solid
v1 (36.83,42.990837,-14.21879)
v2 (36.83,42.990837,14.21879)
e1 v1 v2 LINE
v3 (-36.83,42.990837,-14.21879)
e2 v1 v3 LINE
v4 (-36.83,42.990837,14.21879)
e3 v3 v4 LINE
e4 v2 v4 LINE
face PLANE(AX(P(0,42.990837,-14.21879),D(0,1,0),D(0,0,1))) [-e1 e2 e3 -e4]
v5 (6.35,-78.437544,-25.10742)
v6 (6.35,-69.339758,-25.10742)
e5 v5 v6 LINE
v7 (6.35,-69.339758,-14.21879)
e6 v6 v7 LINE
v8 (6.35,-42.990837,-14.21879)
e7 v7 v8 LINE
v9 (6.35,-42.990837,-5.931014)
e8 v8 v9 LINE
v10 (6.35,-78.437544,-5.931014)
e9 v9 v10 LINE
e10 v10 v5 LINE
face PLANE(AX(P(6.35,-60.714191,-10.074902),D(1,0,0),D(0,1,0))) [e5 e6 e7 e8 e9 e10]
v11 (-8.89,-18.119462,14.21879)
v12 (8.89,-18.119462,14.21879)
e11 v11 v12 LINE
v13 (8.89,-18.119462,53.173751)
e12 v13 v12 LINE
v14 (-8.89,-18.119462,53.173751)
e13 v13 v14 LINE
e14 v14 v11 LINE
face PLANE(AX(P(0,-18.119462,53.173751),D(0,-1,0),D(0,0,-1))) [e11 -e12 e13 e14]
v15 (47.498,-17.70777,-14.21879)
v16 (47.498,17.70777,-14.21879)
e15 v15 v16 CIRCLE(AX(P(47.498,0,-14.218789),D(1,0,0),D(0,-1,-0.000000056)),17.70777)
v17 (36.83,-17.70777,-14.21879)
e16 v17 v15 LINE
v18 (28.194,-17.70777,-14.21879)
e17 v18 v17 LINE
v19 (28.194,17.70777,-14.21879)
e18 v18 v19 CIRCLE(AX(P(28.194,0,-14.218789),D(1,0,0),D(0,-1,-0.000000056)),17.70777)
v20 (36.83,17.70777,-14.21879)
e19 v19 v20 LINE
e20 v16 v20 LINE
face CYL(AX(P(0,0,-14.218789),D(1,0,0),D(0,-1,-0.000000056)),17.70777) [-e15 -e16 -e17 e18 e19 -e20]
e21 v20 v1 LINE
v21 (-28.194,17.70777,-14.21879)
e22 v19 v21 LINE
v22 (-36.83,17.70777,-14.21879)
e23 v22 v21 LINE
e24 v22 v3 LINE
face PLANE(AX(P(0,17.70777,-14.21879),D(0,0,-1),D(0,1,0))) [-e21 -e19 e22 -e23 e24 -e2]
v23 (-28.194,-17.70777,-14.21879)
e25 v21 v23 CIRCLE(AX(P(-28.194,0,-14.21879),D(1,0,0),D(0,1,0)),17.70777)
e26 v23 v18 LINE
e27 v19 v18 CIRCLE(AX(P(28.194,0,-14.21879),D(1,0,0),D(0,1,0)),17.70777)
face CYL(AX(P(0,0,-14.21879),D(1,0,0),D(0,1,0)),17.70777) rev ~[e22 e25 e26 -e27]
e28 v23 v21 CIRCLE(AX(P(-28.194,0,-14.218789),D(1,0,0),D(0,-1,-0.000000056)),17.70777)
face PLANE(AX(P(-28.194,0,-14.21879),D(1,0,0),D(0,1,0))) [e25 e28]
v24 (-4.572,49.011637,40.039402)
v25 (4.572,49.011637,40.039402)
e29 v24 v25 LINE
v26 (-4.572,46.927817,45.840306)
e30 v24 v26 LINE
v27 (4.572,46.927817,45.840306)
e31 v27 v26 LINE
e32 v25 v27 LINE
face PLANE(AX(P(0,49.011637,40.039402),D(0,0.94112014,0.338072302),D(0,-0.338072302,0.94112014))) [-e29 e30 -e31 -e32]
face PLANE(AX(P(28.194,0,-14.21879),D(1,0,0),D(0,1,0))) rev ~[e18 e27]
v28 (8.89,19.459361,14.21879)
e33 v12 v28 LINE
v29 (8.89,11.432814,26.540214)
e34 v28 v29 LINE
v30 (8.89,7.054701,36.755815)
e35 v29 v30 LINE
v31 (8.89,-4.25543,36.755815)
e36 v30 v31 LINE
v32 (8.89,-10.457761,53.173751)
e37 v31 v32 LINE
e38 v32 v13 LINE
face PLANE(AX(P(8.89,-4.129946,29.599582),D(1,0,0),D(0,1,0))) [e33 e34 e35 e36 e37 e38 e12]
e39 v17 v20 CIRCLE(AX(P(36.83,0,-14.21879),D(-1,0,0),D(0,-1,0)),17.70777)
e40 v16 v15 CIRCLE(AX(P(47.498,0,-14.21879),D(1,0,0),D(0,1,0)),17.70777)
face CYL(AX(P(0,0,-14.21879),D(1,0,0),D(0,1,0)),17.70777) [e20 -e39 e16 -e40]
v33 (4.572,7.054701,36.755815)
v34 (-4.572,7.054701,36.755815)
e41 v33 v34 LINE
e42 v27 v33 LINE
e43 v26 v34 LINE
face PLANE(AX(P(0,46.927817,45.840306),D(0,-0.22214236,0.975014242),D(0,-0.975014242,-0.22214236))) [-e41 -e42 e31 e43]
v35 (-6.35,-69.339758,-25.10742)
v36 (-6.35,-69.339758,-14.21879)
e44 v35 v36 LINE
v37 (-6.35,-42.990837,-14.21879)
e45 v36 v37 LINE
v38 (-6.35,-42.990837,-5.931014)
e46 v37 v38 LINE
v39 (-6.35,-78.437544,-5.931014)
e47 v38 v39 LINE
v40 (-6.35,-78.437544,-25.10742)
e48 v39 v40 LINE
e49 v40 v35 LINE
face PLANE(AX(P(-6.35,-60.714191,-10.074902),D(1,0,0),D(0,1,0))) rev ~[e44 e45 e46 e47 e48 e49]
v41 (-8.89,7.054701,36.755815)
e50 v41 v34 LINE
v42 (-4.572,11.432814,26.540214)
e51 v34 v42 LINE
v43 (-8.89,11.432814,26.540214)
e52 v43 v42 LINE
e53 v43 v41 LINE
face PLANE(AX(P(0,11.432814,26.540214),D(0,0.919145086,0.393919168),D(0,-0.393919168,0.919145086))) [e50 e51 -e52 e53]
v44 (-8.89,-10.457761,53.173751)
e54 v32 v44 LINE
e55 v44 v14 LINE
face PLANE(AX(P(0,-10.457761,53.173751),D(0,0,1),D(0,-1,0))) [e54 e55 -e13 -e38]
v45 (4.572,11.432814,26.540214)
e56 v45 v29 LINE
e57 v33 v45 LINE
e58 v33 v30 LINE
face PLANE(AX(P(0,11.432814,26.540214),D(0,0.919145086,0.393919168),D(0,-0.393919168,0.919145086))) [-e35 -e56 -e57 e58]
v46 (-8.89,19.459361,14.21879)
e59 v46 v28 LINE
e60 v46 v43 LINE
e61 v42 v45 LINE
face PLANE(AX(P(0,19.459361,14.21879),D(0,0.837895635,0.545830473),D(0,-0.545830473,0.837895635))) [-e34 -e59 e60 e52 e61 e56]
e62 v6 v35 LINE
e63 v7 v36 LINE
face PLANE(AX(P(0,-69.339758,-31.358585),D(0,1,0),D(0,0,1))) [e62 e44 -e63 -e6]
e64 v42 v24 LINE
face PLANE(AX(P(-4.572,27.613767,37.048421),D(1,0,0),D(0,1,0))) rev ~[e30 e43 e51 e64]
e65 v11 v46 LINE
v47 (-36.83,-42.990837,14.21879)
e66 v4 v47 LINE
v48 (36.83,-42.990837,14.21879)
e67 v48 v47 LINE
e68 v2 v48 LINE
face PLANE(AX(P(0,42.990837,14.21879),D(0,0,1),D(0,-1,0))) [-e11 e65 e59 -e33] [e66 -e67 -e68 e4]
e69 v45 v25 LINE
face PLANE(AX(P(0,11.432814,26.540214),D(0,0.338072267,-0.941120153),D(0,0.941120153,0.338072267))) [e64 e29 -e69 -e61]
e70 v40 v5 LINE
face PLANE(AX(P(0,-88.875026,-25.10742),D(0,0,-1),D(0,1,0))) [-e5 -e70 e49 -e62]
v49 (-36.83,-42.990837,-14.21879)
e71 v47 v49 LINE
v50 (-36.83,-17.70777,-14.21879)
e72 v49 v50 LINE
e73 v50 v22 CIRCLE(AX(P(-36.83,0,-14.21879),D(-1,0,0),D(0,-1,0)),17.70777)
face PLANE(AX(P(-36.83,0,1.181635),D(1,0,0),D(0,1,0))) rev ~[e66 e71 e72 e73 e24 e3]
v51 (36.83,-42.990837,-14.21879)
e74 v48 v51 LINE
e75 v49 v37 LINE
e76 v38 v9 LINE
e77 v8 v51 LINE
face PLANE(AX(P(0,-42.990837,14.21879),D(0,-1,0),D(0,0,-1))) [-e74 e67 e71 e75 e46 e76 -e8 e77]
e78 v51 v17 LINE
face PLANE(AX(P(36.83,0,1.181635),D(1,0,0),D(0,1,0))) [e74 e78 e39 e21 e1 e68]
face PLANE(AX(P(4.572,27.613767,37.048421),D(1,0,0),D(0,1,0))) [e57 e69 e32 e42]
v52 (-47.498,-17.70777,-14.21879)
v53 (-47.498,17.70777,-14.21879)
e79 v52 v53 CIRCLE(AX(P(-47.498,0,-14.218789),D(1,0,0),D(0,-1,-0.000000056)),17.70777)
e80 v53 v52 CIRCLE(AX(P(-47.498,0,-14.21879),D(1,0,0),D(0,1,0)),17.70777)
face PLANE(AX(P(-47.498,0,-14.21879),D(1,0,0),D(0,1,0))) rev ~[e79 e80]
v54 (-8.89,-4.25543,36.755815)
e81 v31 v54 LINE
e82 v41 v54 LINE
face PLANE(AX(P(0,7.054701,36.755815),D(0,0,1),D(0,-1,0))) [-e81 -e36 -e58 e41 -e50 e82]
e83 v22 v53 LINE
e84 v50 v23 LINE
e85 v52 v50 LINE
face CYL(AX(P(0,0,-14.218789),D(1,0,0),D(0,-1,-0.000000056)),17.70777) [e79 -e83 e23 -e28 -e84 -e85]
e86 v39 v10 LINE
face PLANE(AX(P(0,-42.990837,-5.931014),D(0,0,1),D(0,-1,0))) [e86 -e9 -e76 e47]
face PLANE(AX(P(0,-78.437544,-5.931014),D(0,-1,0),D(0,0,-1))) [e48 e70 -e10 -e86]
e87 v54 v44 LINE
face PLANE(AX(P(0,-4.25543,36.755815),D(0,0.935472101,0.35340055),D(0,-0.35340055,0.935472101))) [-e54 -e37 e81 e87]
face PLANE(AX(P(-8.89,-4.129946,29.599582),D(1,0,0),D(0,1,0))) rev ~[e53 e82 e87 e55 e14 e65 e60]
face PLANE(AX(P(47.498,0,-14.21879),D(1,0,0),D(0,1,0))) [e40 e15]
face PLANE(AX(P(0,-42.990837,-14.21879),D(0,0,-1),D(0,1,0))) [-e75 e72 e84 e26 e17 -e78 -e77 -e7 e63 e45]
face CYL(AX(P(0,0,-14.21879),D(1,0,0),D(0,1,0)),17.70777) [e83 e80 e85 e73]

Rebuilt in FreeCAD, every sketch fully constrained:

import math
import FreeCAD as App
import Part
import Sketcher

V = App.Vector
Q = App.Units.Quantity

doc = App.newDocument("Part")
body = doc.addObject("PartDesign::Body", "Body")

# Sketch on YZ plane
sketch1 = body.newObject("Sketcher::SketchObject", "Sketch")
sketch1.AttachmentSupport = (doc.getObject("YZ_Plane"), [""])
sketch1.MapMode = "FlatFace"
sketch1.addGeometry([
    Part.LineSegment(V(-43, 14, 0), V(-43, -14, 0)),  # 0
    Part.LineSegment(V(-43, -14, 0), V(-18, -14, 0)),  # 1
    Part.ArcOfCircle(Part.Circle(V(0, -14, 0), V(0, 0, 1), 18), math.radians(0), math.radians(180)),  # 2
    Part.LineSegment(V(18, -14, 0), V(43, -14, 0)),  # 3
    Part.LineSegment(V(43, -14, 0), V(43, 14, 0)),  # 4
    Part.LineSegment(V(43, 14, 0), V(-43, 14, 0)),  # 5
], False)
sketch1.addConstraint([
    Sketcher.Constraint("Coincident", 0, 2, 1, 1),
    Sketcher.Constraint("Coincident", 1, 2, 2, 2),
    Sketcher.Constraint("Coincident", 2, 1, 3, 1),
    Sketcher.Constraint("Coincident", 3, 2, 4, 1),
    Sketcher.Constraint("Coincident", 4, 2, 5, 1),
    Sketcher.Constraint("Coincident", 5, 2, 0, 1),
    Sketcher.Constraint("Vertical", 0),
    Sketcher.Constraint("Horizontal", 1),
    Sketcher.Constraint("Horizontal", 3),
    Sketcher.Constraint("Vertical", 4),
    Sketcher.Constraint("Horizontal", 5),
    Sketcher.Constraint("Symmetric", 0, 2, 4, 2, -1, 1),
    Sketcher.Constraint("Symmetric", 1, 2, 2, 1, -2),
    Sketcher.Constraint("Horizontal", 2, 3, 0, 2),
    Sketcher.Constraint("Radius", 2, 17.70777),
    Sketcher.Constraint("DistanceY", 0, 2, 0, 1, 28.43758),
    Sketcher.Constraint("DistanceX", 1, 1, 1, 2, 25.283067),
])
pad1 = body.newObject("PartDesign::Pad", "Pad")
pad1.Profile = sketch1
pad1.Length = Q("2.9 in")
pad1.Midplane = True

# Sketch on YZ plane
sketch2 = body.newObject("Sketcher::SketchObject", "Sketch001")
sketch2.AttachmentSupport = (doc.getObject("YZ_Plane"), [""])
sketch2.MapMode = "FlatFace"
sketch2.addGeometry([
    Part.ArcOfCircle(Part.Circle(V(0, -14, 0), V(0, 0, 1), 18), math.radians(0), math.radians(180)),
    Part.ArcOfCircle(Part.Circle(V(0, -14, 0), V(0, 0, 1), 18), math.radians(-180), math.radians(0)),
], False)
sketch2.addConstraint([
    Sketcher.Constraint("Tangent", 0, 1, 1, 2),
    Sketcher.Constraint("Coincident", 1, 1, 0, 2),
    Sketcher.Constraint("Symmetric", 0, 1, 1, 1, -2),
    Sketcher.Constraint("Horizontal", 1, 3, 0, 1),
    Sketcher.Constraint("Radius", 0, 17.70777),
    Sketcher.Constraint("DistanceY", 0, 3, -1, 1, 14.21879),
])
pad2 = body.newObject("PartDesign::Pad", "Pad001")
pad2.Profile = sketch2
pad2.Length = Q("3.74 in")
pad2.Midplane = True

# Sketch on YZ plane
sketch3 = body.newObject("Sketcher::SketchObject", "Sketch002")
sketch3.AttachmentSupport = (doc.getObject("YZ_Plane"), [""])
sketch3.MapMode = "FlatFace"
sketch3.addGeometry([
    Part.ArcOfCircle(Part.Circle(V(0, -14, 0), V(0, 0, 1), 18), math.radians(0), math.radians(180)),
    Part.ArcOfCircle(Part.Circle(V(0, -14, 0), V(0, 0, 1), 18), math.radians(-180), math.radians(0)),
], False)
sketch3.addConstraint([
    Sketcher.Constraint("Tangent", 0, 1, 1, 2),
    Sketcher.Constraint("Coincident", 1, 1, 0, 2),
    Sketcher.Constraint("Symmetric", 0, 1, 1, 1, -2),
    Sketcher.Constraint("Horizontal", 1, 3, 0, 1),
    Sketcher.Constraint("Radius", 0, 17.70777),
    Sketcher.Constraint("DistanceY", 0, 3, -1, 1, 14.21879),
])
pocket1 = body.newObject("PartDesign::Pocket", "Pocket")
pocket1.Profile = sketch3
pocket1.Length = Q("2.22 in")
pocket1.Midplane = True

# Sketch on YZ plane
sketch4 = body.newObject("Sketcher::SketchObject", "Sketch003")
sketch4.AttachmentSupport = (doc.getObject("YZ_Plane"), [""])
sketch4.MapMode = "FlatFace"
sketch4.addGeometry([
    Part.LineSegment(V(-18, 53, 0), V(-18, 14, 0)),  # 0
    Part.LineSegment(V(-18, 14, 0), V(19, 14, 0)),  # 1
    Part.LineSegment(V(19, 14, 0), V(11, 27, 0)),  # 2
    Part.LineSegment(V(11, 27, 0), V(7, 37, 0)),  # 3
    Part.LineSegment(V(7, 37, 0), V(-4, 37, 0)),  # 4
    Part.LineSegment(V(-4, 37, 0), V(-10, 53, 0)),  # 5
    Part.LineSegment(V(-10, 53, 0), V(-18, 53, 0)),  # 6
], False)
sketch4.addConstraint([
    Sketcher.Constraint("Coincident", 0, 2, 1, 1),
    Sketcher.Constraint("Coincident", 1, 2, 2, 1),
    Sketcher.Constraint("Coincident", 2, 2, 3, 1),
    Sketcher.Constraint("Coincident", 3, 2, 4, 1),
    Sketcher.Constraint("Coincident", 4, 2, 5, 1),
    Sketcher.Constraint("Coincident", 5, 2, 6, 1),
    Sketcher.Constraint("Coincident", 6, 2, 0, 1),
    Sketcher.Constraint("Vertical", 0),
    Sketcher.Constraint("Horizontal", 1),
    Sketcher.Constraint("Horizontal", 4),
    Sketcher.Constraint("Horizontal", 6),
    Sketcher.Constraint("DistanceX", 6, 2, 6, 1, 7.661701),
    Sketcher.Constraint("Distance", 2, 14.705201),
    Sketcher.Constraint("DistanceX", 4, 2, 4, 1, 11.310131),
    Sketcher.Constraint("DistanceY", 0, 2, 0, 1, 38.954961),
    Sketcher.Constraint("DistanceX", -1, 1, 3, 2, 7.054701),
    Sketcher.Constraint("DistanceY", 2, 2, 3, 2, 10.215601),
    Sketcher.Constraint("Distance", 5, 17.550428),
    Sketcher.Constraint("DistanceX", 1, 1, 1, 2, 37.578823),
    Sketcher.Constraint("DistanceX", 0, 2, -1, 1, 18.119462),
    Sketcher.Constraint("DistanceY", -1, 1, 0, 2, 14.21879),
])
pad3 = body.newObject("PartDesign::Pad", "Pad002")
pad3.Profile = sketch4
pad3.Length = Q("0.7 in")
pad3.Midplane = True

# Sketch on YZ plane
sketch5 = body.newObject("Sketcher::SketchObject", "Sketch004")
sketch5.AttachmentSupport = (doc.getObject("YZ_Plane"), [""])
sketch5.MapMode = "FlatFace"
sketch5.addGeometry([
    Part.LineSegment(V(7, 37, 0), V(11, 27, 0)),
    Part.LineSegment(V(11, 27, 0), V(49, 40, 0)),
    Part.LineSegment(V(49, 40, 0), V(47, 46, 0)),
    Part.LineSegment(V(47, 46, 0), V(7, 37, 0)),
], False)
sketch5.addConstraint([
    Sketcher.Constraint("Coincident", 0, 2, 1, 1),
    Sketcher.Constraint("Coincident", 1, 2, 2, 1),
    Sketcher.Constraint("Coincident", 2, 2, 3, 1),
    Sketcher.Constraint("Coincident", 3, 2, 0, 1),
    Sketcher.Constraint("Perpendicular", 1, 2),
    Sketcher.Constraint("DistanceX", -1, 1, 3, 2, 7.054701),
    Sketcher.Constraint("DistanceY", 0, 2, 3, 2, 10.215601),
    Sketcher.Constraint("Distance", 1, 39.929889),
    Sketcher.Constraint("Distance", 2, 6.163829),
    Sketcher.Constraint("DistanceY", 0, 2, 1, 2, 13.499188),
    Sketcher.Constraint("Distance", 0, 11.114242),
    Sketcher.Constraint("DistanceY", -1, 1, 0, 2, 26.540214),
])
pad4 = body.newObject("PartDesign::Pad", "Pad003")
pad4.Profile = sketch5
pad4.Length = Q("0.36 in")
pad4.Midplane = True

# Sketch on YZ plane
sketch6 = body.newObject("Sketcher::SketchObject", "Sketch005")
sketch6.AttachmentSupport = (doc.getObject("YZ_Plane"), [""])
sketch6.MapMode = "FlatFace"
sketch6.addGeometry([
    Part.LineSegment(V(-43, -14, 0), V(-43, -6, 0)),  # 0
    Part.LineSegment(V(-43, -6, 0), V(-78, -6, 0)),  # 1
    Part.LineSegment(V(-78, -6, 0), V(-78, -31, 0)),  # 2
    Part.LineSegment(V(-78, -31, 0), V(-69, -31, 0)),  # 3
    Part.LineSegment(V(-69, -31, 0), V(-69, -14, 0)),  # 4
    Part.LineSegment(V(-69, -14, 0), V(-43, -14, 0)),  # 5
], False)
sketch6.addConstraint([
    Sketcher.Constraint("Coincident", 0, 2, 1, 1),
    Sketcher.Constraint("Coincident", 1, 2, 2, 1),
    Sketcher.Constraint("Coincident", 2, 2, 3, 1),
    Sketcher.Constraint("Coincident", 3, 2, 4, 1),
    Sketcher.Constraint("Coincident", 4, 2, 5, 1),
    Sketcher.Constraint("Coincident", 5, 2, 0, 1),
    Sketcher.Constraint("Vertical", 0),
    Sketcher.Constraint("Horizontal", 1),
    Sketcher.Constraint("Vertical", 2),
    Sketcher.Constraint("Vertical", 4),
    Sketcher.Constraint("Horizontal", 5),
    Sketcher.Constraint("DistanceX", 5, 1, 5, 2, 26.348921),
    Sketcher.Constraint("DistanceY", 2, 2, 2, 1, 25.352972),
    Sketcher.Constraint("DistanceY", 3, 2, 2, 2, 0.074599),
    Sketcher.Constraint("Distance", 3, 9.098092),
    Sketcher.Constraint("DistanceY", 0, 1, 0, 2, 8.287776),
    Sketcher.Constraint("DistanceX", 3, 2, -1, 1, 69.339758),
    Sketcher.Constraint("DistanceY", 4, 2, -1, 1, 14.21879),
])
pad5 = body.newObject("PartDesign::Pad", "Pad004")
pad5.Profile = sketch6
pad5.Length = Q("0.5 in")
pad5.Midplane = True

# Sketch on YZ plane
sketch7 = body.newObject("Sketcher::SketchObject", "Sketch006")
sketch7.AttachmentSupport = (doc.getObject("YZ_Plane"), [""])
sketch7.MapMode = "FlatFace"
sketch7.addGeometry([
    Part.LineSegment(V(-89, -25, 0), V(-89, -36, 0)),
    Part.LineSegment(V(-89, -36, 0), V(-55, -36, 0)),
    Part.LineSegment(V(-55, -36, 0), V(-55, -25, 0)),
    Part.LineSegment(V(-55, -25, 0), V(-89, -25, 0)),
], False)
sketch7.addConstraint([
    Sketcher.Constraint("Coincident", 0, 2, 1, 1),
    Sketcher.Constraint("Coincident", 1, 2, 2, 1),
    Sketcher.Constraint("Coincident", 2, 2, 3, 1),
    Sketcher.Constraint("Coincident", 3, 2, 0, 1),
    Sketcher.Constraint("Vertical", 0),
    Sketcher.Constraint("Horizontal", 1),
    Sketcher.Constraint("Vertical", 2),
    Sketcher.Constraint("Horizontal", 3),
    Sketcher.Constraint("DistanceY", 0, 2, 0, 1, 11.318151),
    Sketcher.Constraint("DistanceX", 1, 1, 1, 2, 33.954457),
    Sketcher.Constraint("DistanceY", 0, 2, -1, 1, 36.425571),
    Sketcher.Constraint("DistanceX", 1, 2, -1, 1, 54.920569),
])
pocket2 = body.newObject("PartDesign::Pocket", "Pocket001")
pocket2.Profile = sketch7
pocket2.Length = Q("1 in")
pocket2.Midplane = True

doc.recompute()
